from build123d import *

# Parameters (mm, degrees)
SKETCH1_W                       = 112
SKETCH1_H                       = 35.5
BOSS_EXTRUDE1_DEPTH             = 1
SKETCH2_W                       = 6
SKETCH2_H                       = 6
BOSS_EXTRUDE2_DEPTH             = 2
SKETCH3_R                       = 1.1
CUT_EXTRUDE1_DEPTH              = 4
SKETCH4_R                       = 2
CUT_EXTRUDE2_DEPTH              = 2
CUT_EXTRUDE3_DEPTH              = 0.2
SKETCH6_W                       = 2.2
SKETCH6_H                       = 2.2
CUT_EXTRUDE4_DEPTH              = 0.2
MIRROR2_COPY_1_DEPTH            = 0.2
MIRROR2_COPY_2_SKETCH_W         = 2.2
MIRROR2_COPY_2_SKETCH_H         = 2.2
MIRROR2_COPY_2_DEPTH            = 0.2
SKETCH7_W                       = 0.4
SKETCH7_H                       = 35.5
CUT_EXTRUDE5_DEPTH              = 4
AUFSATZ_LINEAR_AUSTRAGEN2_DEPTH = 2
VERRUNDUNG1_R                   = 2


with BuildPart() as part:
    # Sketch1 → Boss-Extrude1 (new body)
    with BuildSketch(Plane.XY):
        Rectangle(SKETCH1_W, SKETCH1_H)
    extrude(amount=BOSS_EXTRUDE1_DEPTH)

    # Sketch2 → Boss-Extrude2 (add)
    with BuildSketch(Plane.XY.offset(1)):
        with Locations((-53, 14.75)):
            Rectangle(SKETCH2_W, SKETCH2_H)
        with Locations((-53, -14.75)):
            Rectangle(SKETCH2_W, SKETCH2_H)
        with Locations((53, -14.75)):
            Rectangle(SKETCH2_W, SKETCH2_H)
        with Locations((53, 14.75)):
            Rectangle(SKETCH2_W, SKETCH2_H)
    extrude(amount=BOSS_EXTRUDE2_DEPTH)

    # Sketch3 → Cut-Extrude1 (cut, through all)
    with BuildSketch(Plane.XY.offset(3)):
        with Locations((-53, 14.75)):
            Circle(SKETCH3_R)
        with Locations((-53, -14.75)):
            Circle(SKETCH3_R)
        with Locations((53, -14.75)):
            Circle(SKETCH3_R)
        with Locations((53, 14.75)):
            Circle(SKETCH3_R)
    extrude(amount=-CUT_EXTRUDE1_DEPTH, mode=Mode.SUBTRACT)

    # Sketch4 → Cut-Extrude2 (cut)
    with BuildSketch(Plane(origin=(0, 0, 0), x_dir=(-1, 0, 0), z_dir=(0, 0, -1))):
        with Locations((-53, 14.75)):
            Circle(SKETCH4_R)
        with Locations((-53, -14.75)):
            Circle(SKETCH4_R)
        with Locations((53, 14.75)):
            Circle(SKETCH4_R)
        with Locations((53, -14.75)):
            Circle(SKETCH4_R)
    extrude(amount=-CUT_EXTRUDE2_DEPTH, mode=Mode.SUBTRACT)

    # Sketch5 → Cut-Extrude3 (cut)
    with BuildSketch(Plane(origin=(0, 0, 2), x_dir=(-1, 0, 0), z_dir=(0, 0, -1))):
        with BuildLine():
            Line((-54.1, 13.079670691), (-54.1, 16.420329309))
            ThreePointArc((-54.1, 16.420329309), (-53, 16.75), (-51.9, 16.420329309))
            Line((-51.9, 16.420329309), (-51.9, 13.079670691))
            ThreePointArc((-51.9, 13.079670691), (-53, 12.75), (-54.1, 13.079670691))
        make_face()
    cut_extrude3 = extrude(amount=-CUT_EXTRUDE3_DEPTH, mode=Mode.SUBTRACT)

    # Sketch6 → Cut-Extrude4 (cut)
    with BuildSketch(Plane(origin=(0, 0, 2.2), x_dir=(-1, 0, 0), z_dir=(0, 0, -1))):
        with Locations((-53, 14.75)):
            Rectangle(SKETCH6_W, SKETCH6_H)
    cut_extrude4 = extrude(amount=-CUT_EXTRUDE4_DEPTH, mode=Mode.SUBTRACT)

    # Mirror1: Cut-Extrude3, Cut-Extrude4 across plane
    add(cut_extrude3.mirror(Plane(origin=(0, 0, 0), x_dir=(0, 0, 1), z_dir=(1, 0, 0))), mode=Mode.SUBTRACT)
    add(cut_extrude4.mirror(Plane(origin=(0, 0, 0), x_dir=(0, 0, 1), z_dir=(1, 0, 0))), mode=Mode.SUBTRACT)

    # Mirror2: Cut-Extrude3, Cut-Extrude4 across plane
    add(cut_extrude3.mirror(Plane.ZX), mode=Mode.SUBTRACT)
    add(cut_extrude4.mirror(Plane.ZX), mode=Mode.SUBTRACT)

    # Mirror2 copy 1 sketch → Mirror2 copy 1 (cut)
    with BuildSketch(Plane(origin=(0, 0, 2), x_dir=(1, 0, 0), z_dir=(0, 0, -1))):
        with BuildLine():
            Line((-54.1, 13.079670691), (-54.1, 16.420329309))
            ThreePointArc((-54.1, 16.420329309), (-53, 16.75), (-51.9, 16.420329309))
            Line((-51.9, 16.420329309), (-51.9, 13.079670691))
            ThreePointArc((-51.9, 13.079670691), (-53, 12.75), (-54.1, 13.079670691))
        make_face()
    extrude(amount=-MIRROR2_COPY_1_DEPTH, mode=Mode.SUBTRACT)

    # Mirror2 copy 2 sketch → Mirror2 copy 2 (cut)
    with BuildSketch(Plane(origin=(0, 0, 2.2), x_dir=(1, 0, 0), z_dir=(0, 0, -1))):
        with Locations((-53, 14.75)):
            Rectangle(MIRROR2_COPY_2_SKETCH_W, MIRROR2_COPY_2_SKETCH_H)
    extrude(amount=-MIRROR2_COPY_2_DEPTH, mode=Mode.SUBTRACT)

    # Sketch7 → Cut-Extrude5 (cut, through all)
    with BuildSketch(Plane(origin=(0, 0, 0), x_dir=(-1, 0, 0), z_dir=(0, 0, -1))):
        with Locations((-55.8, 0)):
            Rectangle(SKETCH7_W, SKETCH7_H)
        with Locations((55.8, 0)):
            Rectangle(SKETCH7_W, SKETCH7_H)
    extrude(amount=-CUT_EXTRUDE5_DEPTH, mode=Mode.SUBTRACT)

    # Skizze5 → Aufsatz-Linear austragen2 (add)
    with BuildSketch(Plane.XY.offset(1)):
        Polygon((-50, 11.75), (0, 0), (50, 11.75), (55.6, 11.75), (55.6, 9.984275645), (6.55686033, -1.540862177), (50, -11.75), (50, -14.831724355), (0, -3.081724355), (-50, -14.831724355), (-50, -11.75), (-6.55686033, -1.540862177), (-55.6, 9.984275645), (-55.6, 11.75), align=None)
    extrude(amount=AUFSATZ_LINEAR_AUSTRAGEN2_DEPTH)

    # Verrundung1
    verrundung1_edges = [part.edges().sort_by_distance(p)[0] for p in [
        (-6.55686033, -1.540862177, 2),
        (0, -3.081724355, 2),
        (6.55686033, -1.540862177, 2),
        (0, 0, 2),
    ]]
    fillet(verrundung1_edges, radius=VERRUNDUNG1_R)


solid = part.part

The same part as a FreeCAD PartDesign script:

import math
import FreeCAD as App
import Part
import Sketcher

V = App.Vector


def edges_at(feature, points):
    """Names of the edges that pass closest to the given points."""
    edges = feature.Shape.Edges
    near = lambda p: min(range(len(edges)), key=lambda i: edges[i].distToShape(Part.Vertex(*p))[0])
    return sorted({f"Edge{near(p) + 1}" for p in points})

doc = App.newDocument("Part")
body = doc.addObject("PartDesign::Body", "Body")

# Sketch on XY plane
sketch1 = body.newObject("Sketcher::SketchObject", "Sketch")
sketch1.AttachmentSupport = (doc.getObject("XY_Plane"), [""])
sketch1.MapMode = "FlatFace"
sketch1.addGeometry([
    Part.LineSegment(V(-56, 18, 0), V(-56, -18, 0)),
    Part.LineSegment(V(-56, -18, 0), V(56, -18, 0)),
    Part.LineSegment(V(56, -18, 0), V(56, 18, 0)),
    Part.LineSegment(V(56, 18, 0), V(-56, 18, 0)),
], False)
sketch1.addConstraint([
    Sketcher.Constraint("Coincident", 0, 2, 1, 1),
    Sketcher.Constraint("Coincident", 1, 2, 2, 1),
    Sketcher.Constraint("Coincident", 2, 2, 3, 1),
    Sketcher.Constraint("Coincident", 3, 2, 0, 1),
    Sketcher.Constraint("Vertical", 0),
    Sketcher.Constraint("Horizontal", 1),
    Sketcher.Constraint("Vertical", 2),
    Sketcher.Constraint("Horizontal", 3),
    Sketcher.Constraint("Symmetric", 0, 2, 2, 2, -1, 1),
    Sketcher.Constraint("DistanceX", 1, 1, 1, 2, 112.0),
    Sketcher.Constraint("DistanceY", 0, 2, 0, 1, 35.5),
])
pad1 = body.newObject("PartDesign::Pad", "Pad")
pad1.Profile = sketch1
pad1.Length = 1

# Sketch on XY plane
sketch2 = body.newObject("Sketcher::SketchObject", "Sketch001")
sketch2.AttachmentSupport = (doc.getObject("XY_Plane"), [""])
sketch2.MapMode = "FlatFace"
sketch2.AttachmentOffset = App.Placement(V(0, 0, 1), App.Rotation())
sketch2.addGeometry([
    Part.LineSegment(V(-56, 18, 0), V(-56, 12, 0)),  # 0
    Part.LineSegment(V(-56, 12, 0), V(-50, 12, 0)),  # 1
    Part.LineSegment(V(-50, 12, 0), V(-50, 18, 0)),  # 2
    Part.LineSegment(V(-50, 18, 0), V(-56, 18, 0)),  # 3
    Part.LineSegment(V(-56, -12, 0), V(-56, -18, 0)),  # 4
    Part.LineSegment(V(-56, -18, 0), V(-50, -18, 0)),  # 5
    Part.LineSegment(V(-50, -18, 0), V(-50, -12, 0)),  # 6
    Part.LineSegment(V(-50, -12, 0), V(-56, -12, 0)),  # 7
    Part.LineSegment(V(50, -12, 0), V(50, -18, 0)),  # 8
    Part.LineSegment(V(50, -18, 0), V(56, -18, 0)),  # 9
    Part.LineSegment(V(56, -18, 0), V(56, -12, 0)),  # 10
    Part.LineSegment(V(56, -12, 0), V(50, -12, 0)),  # 11
    Part.LineSegment(V(50, 18, 0), V(50, 12, 0)),  # 12
    Part.LineSegment(V(50, 12, 0), V(56, 12, 0)),  # 13
    Part.LineSegment(V(56, 12, 0), V(56, 18, 0)),  # 14
    Part.LineSegment(V(56, 18, 0), V(50, 18, 0)),  # 15
], False)
sketch2.addConstraint([
    Sketcher.Constraint("Coincident", 0, 2, 1, 1),
    Sketcher.Constraint("Coincident", 1, 2, 2, 1),
    Sketcher.Constraint("Coincident", 2, 2, 3, 1),
    Sketcher.Constraint("Coincident", 3, 2, 0, 1),
    Sketcher.Constraint("Coincident", 4, 2, 5, 1),
    Sketcher.Constraint("Coincident", 5, 2, 6, 1),
    Sketcher.Constraint("Coincident", 6, 2, 7, 1),
    Sketcher.Constraint("Coincident", 7, 2, 4, 1),
    Sketcher.Constraint("Coincident", 8, 2, 9, 1),
    Sketcher.Constraint("Coincident", 9, 2, 10, 1),
    Sketcher.Constraint("Coincident", 10, 2, 11, 1),
    Sketcher.Constraint("Coincident", 11, 2, 8, 1),
    Sketcher.Constraint("Coincident", 12, 2, 13, 1),
    Sketcher.Constraint("Coincident", 13, 2, 14, 1),
    Sketcher.Constraint("Coincident", 14, 2, 15, 1),
    Sketcher.Constraint("Coincident", 15, 2, 12, 1),
    Sketcher.Constraint("Vertical", 0),
    Sketcher.Constraint("Horizontal", 1),
    Sketcher.Constraint("Vertical", 2),
    Sketcher.Constraint("Horizontal", 3),
    Sketcher.Constraint("Vertical", 4),
    Sketcher.Constraint("Horizontal", 5),
    Sketcher.Constraint("Vertical", 6),
    Sketcher.Constraint("Horizontal", 7),
    Sketcher.Constraint("Vertical", 8),
    Sketcher.Constraint("Horizontal", 9),
    Sketcher.Constraint("Vertical", 10),
    Sketcher.Constraint("Horizontal", 11),
    Sketcher.Constraint("Vertical", 12),
    Sketcher.Constraint("Horizontal", 13),
    Sketcher.Constraint("Vertical", 14),
    Sketcher.Constraint("Horizontal", 15),
    Sketcher.Constraint("Symmetric", 2, 2, 8, 2, -1, 1),
    Sketcher.Constraint("Symmetric", 0, 2, 10, 2, -1, 1),
    Sketcher.Constraint("Symmetric", 6, 2, 12, 2, -1, 1),
    Sketcher.Constraint("Symmetric", 4, 2, 14, 2, -1, 1),
    Sketcher.Constraint("Symmetric", 5, 2, 8, 2, -2),
    Sketcher.Constraint("Symmetric", 7, 2, 10, 2, -2),
    Sketcher.Constraint("Equal", 15, 0),
    Sketcher.Constraint("DistanceX", 1, 1, 1, 2, 6.0),
    Sketcher.Constraint("DistanceX", 0, 2, -1, 1, 56.0),
    Sketcher.Constraint("DistanceY", 4, 2, 0, 2, 29.5),
])
pad2 = body.newObject("PartDesign::Pad", "Pad001")
pad2.Profile = sketch2
pad2.Length = 2

# Sketch on XY plane
sketch3 = body.newObject("Sketcher::SketchObject", "Sketch002")
sketch3.AttachmentSupport = (doc.getObject("XY_Plane"), [""])
sketch3.MapMode = "FlatFace"
sketch3.AttachmentOffset = App.Placement(V(0, 0, 3), App.Rotation())
sketch3.addGeometry([
    Part.Circle(V(-53, 14.8, 0), V(0, 0, 1), 1.1),
    Part.Circle(V(-53, -14.8, 0), V(0, 0, 1), 1.1),
    Part.Circle(V(53, -14.8, 0), V(0, 0, 1), 1.1),
    Part.Circle(V(53, 14.8, 0), V(0, 0, 1), 1.1),
], False)
sketch3.addConstraint([
    Sketcher.Constraint("Equal", 0, 1),
    Sketcher.Constraint("Equal", 1, 2),
    Sketcher.Constraint("Equal", 2, 3),
    Sketcher.Constraint("Symmetric", 0, 3, 2, 3, -1, 1),
    Sketcher.Constraint("Symmetric", 1, 3, 3, 3, -1, 1),
    Sketcher.Constraint("Symmetric", 1, 3, 2, 3, -2),
    Sketcher.Constraint("Diameter", 0, 2.2),
    Sketcher.Constraint("DistanceX", 0, 3, -1, 1, 53.0),
    Sketcher.Constraint("DistanceY", 1, 3, 0, 3, 29.5),
])
pocket1 = body.newObject("PartDesign::Pocket", "Pocket")
pocket1.Profile = sketch3
pocket1.Type = "ThroughAll"

# Sketch on XY plane
sketch4 = body.newObject("Sketcher::SketchObject", "Sketch003")
sketch4.AttachmentSupport = (doc.getObject("XY_Plane"), [""])
sketch4.MapMode = "FlatFace"
sketch4.addGeometry([
    Part.Circle(V(53, 14.8, 0), V(0, 0, 1), 2),
    Part.Circle(V(53, -14.8, 0), V(0, 0, 1), 2),
    Part.Circle(V(-53, 14.8, 0), V(0, 0, 1), 2),
    Part.Circle(V(-53, -14.8, 0), V(0, 0, 1), 2),
], False)
sketch4.addConstraint([
    Sketcher.Constraint("Equal", 0, 1),
    Sketcher.Constraint("Equal", 1, 2),
    Sketcher.Constraint("Equal", 2, 3),
    Sketcher.Constraint("Symmetric", 1, 3, 2, 3, -1, 1),
    Sketcher.Constraint("Symmetric", 0, 3, 3, 3, -1, 1),
    Sketcher.Constraint("Symmetric", 0, 3, 2, 3, -2),
    Sketcher.Constraint("Diameter", 0, 4.0),
    Sketcher.Constraint("DistanceX", -1, 1, 0, 3, 53.0),
    Sketcher.Constraint("DistanceY", 1, 3, 0, 3, 29.5),
])
pocket2 = body.newObject("PartDesign::Pocket", "Pocket001")
pocket2.Profile = sketch4
pocket2.Length = 2
pocket2.Reversed = True

# Sketch on XY plane
sketch5 = body.newObject("Sketcher::SketchObject", "Sketch004")
sketch5.AttachmentSupport = (doc.getObject("XY_Plane"), [""])
sketch5.MapMode = "FlatFace"
sketch5.AttachmentOffset = App.Placement(V(0, 0, 2), App.Rotation())
sketch5.addGeometry([
    Part.LineSegment(V(54.1, 16.4, 0), V(54.1, 13.1, 0)),
    Part.ArcOfCircle(Part.Circle(V(53, 14.8, 0), V(0, 0, 1), 2), math.radians(-123), math.radians(-57)),
    Part.LineSegment(V(51.9, 13.1, 0), V(51.9, 16.4, 0)),
    Part.ArcOfCircle(Part.Circle(V(53, 14.7, 0), V(0, 0, 1), 2), math.radians(57), math.radians(123)),
], False)
sketch5.addConstraint([
    Sketcher.Constraint("Coincident", 0, 2, 1, 2),
    Sketcher.Constraint("Coincident", 1, 1, 2, 1),
    Sketcher.Constraint("Coincident", 2, 2, 3, 2),
    Sketcher.Constraint("Coincident", 3, 1, 0, 1),
    Sketcher.Constraint("Vertical", 0),
    Sketcher.Constraint("Vertical", 2),
    Sketcher.Constraint("Coincident", 3, 3, 1, 3),
    Sketcher.Constraint("Equal", 1, 3),
    Sketcher.Constraint("Horizontal", 0, 2, 1, 1),
    Sketcher.Constraint("Radius", 1, 2.0),
    Sketcher.Constraint("DistanceX", -1, 1, 1, 3, 53.0),
    Sketcher.Constraint("DistanceX", -1, 1, 0, 2, 54.1),
    Sketcher.Constraint("DistanceY", -1, 1, 1, 3, 14.75),
])
pocket3 = body.newObject("PartDesign::Pocket", "Pocket002")
pocket3.Profile = sketch5
pocket3.Length = 0.2
pocket3.Reversed = True

# Sketch on XY plane
sketch6 = body.newObject("Sketcher::SketchObject", "Sketch005")
sketch6.AttachmentSupport = (doc.getObject("XY_Plane"), [""])
sketch6.MapMode = "FlatFace"
sketch6.AttachmentOffset = App.Placement(V(0, 0, 2.2), App.Rotation())
sketch6.addGeometry([
    Part.LineSegment(V(54.1, 15.8, 0), V(54.1, 13.7, 0)),
    Part.LineSegment(V(54.1, 13.7, 0), V(51.9, 13.7, 0)),
    Part.LineSegment(V(51.9, 13.7, 0), V(51.9, 15.8, 0)),
    Part.LineSegment(V(51.9, 15.8, 0), V(54.1, 15.8, 0)),
], False)
sketch6.addConstraint([
    Sketcher.Constraint("Coincident", 0, 2, 1, 1),
    Sketcher.Constraint("Coincident", 1, 2, 2, 1),
    Sketcher.Constraint("Coincident", 2, 2, 3, 1),
    Sketcher.Constraint("Coincident", 3, 2, 0, 1),
    Sketcher.Constraint("Vertical", 0),
    Sketcher.Constraint("Horizontal", 1),
    Sketcher.Constraint("Vertical", 2),
    Sketcher.Constraint("Horizontal", 3),
    Sketcher.Constraint("Equal", 3, 0),
    Sketcher.Constraint("DistanceX", 1, 2, 1, 1, 2.2),
    Sketcher.Constraint("DistanceX", -1, 1, 0, 2, 54.1),
    Sketcher.Constraint("DistanceY", -1, 1, 0, 2, 13.65),
])
pocket4 = body.newObject("PartDesign::Pocket", "Pocket003")
pocket4.Profile = sketch6
pocket4.Length = 0.2
pocket4.Reversed = True
doc.recompute()

mirrored = body.newObject("PartDesign::Mirrored", "Mirrored")
mirrored.Originals = [pocket3, pocket4]
mirrored.MirrorPlane = (doc.getObject("YZ_Plane"), [""])
body.Tip = mirrored
doc.recompute()

mirrored2 = body.newObject("PartDesign::Mirrored", "Mirrored001")
mirrored2.Originals = [pocket3, pocket4]
mirrored2.MirrorPlane = (doc.getObject("XZ_Plane"), [""])
body.Tip = mirrored2

# Sketch on XY plane
sketch7 = body.newObject("Sketcher::SketchObject", "Sketch006")
sketch7.AttachmentSupport = (doc.getObject("XY_Plane"), [""])
sketch7.MapMode = "FlatFace"
sketch7.AttachmentOffset = App.Placement(V(0, 0, 2), App.Rotation())
sketch7.addGeometry([
    Part.LineSegment(V(-54.1, -16.4, 0), V(-54.1, -13.1, 0)),
    Part.ArcOfCircle(Part.Circle(V(-53, -14.8, 0), V(0, 0, 1), 2), math.radians(57), math.radians(123)),
    Part.LineSegment(V(-51.9, -13.1, 0), V(-51.9, -16.4, 0)),
    Part.ArcOfCircle(Part.Circle(V(-53, -14.7, 0), V(0, 0, 1), 2), math.radians(-123), math.radians(-57)),
], False)
sketch7.addConstraint([
    Sketcher.Constraint("Coincident", 0, 2, 1, 2),
    Sketcher.Constraint("Coincident", 1, 1, 2, 1),
    Sketcher.Constraint("Coincident", 2, 2, 3, 2),
    Sketcher.Constraint("Coincident", 3, 1, 0, 1),
    Sketcher.Constraint("Vertical", 0),
    Sketcher.Constraint("Vertical", 2),
    Sketcher.Constraint("Coincident", 3, 3, 1, 3),
    Sketcher.Constraint("Equal", 1, 3),
    Sketcher.Constraint("Horizontal", 0, 2, 1, 1),
    Sketcher.Constraint("Radius", 1, 2.0),
    Sketcher.Constraint("DistanceX", 1, 3, -1, 1, 53.0),
    Sketcher.Constraint("DistanceX", 0, 2, -1, 1, 54.1),
    Sketcher.Constraint("DistanceY", 1, 3, -1, 1, 14.75),
])
pocket5 = body.newObject("PartDesign::Pocket", "Pocket004")
pocket5.Profile = sketch7
pocket5.Length = 0.2
pocket5.Reversed = True

# Sketch on XY plane
sketch8 = body.newObject("Sketcher::SketchObject", "Sketch007")
sketch8.AttachmentSupport = (doc.getObject("XY_Plane"), [""])
sketch8.MapMode = "FlatFace"
sketch8.AttachmentOffset = App.Placement(V(0, 0, 2.2), App.Rotation())
sketch8.addGeometry([
    Part.LineSegment(V(-54.1, -15.8, 0), V(-54.1, -13.7, 0)),
    Part.LineSegment(V(-54.1, -13.7, 0), V(-51.9, -13.7, 0)),
    Part.LineSegment(V(-51.9, -13.7, 0), V(-51.9, -15.8, 0)),
    Part.LineSegment(V(-51.9, -15.8, 0), V(-54.1, -15.8, 0)),
], False)
sketch8.addConstraint([
    Sketcher.Constraint("Coincident", 0, 2, 1, 1),
    Sketcher.Constraint("Coincident", 1, 2, 2, 1),
    Sketcher.Constraint("Coincident", 2, 2, 3, 1),
    Sketcher.Constraint("Coincident", 3, 2, 0, 1),
    Sketcher.Constraint("Vertical", 0),
    Sketcher.Constraint("Horizontal", 1),
    Sketcher.Constraint("Vertical", 2),
    Sketcher.Constraint("Horizontal", 3),
    Sketcher.Constraint("Equal", 3, 0),
    Sketcher.Constraint("DistanceX", 1, 1, 1, 2, 2.2),
    Sketcher.Constraint("DistanceX", 0, 2, -1, 1, 54.1),
    Sketcher.Constraint("DistanceY", 0, 2, -1, 1, 13.65),
])
pocket6 = body.newObject("PartDesign::Pocket", "Pocket005")
pocket6.Profile = sketch8
pocket6.Length = 0.2
pocket6.Reversed = True

# Sketch on XY plane
sketch9 = body.newObject("Sketcher::SketchObject", "Sketch008")
sketch9.AttachmentSupport = (doc.getObject("XY_Plane"), [""])
sketch9.MapMode = "FlatFace"
sketch9.addGeometry([
    Part.LineSegment(V(56, 17.75, 0), V(56, -17.75, 0)),  # 0
    Part.LineSegment(V(56, -17.75, 0), V(55.6, -17.75, 0)),  # 1
    Part.LineSegment(V(55.6, -17.75, 0), V(55.6, 17.75, 0)),  # 2
    Part.LineSegment(V(55.6, 17.75, 0), V(56, 17.75, 0)),  # 3
    Part.LineSegment(V(-55.6, 17.75, 0), V(-55.6, -17.75, 0)),  # 4
    Part.LineSegment(V(-55.6, -17.75, 0), V(-56, -17.75, 0)),  # 5
    Part.LineSegment(V(-56, -17.75, 0), V(-56, 17.75, 0)),  # 6
    Part.LineSegment(V(-56, 17.75, 0), V(-55.6, 17.75, 0)),  # 7
], False)
sketch9.addConstraint([
    Sketcher.Constraint("Coincident", 0, 2, 1, 1),
    Sketcher.Constraint("Coincident", 1, 2, 2, 1),
    Sketcher.Constraint("Coincident", 2, 2, 3, 1),
    Sketcher.Constraint("Coincident", 3, 2, 0, 1),
    Sketcher.Constraint("Coincident", 4, 2, 5, 1),
    Sketcher.Constraint("Coincident", 5, 2, 6, 1),
    Sketcher.Constraint("Coincident", 6, 2, 7, 1),
    Sketcher.Constraint("Coincident", 7, 2, 4, 1),
    Sketcher.Constraint("Vertical", 0),
    Sketcher.Constraint("Horizontal", 1),
    Sketcher.Constraint("Vertical", 2),
    Sketcher.Constraint("Horizontal", 3),
    Sketcher.Constraint("Vertical", 4),
    Sketcher.Constraint("Horizontal", 5),
    Sketcher.Constraint("Vertical", 6),
    Sketcher.Constraint("Horizontal", 7),
    Sketcher.Constraint("Symmetric", 2, 2, 4, 2, -1, 1),
    Sketcher.Constraint("Symmetric", 0, 2, 6, 2, -1, 1),
    Sketcher.Constraint("Horizontal", 1, 2, 4, 2),
    Sketcher.Constraint("DistanceX", 1, 2, 1, 1, 0.4),
    Sketcher.Constraint("DistanceY", 0, 2, 0, 1, 35.5),
    Sketcher.Constraint("DistanceX", -1, 1, 0, 2, 56.0),
])
pocket7 = body.newObject("PartDesign::Pocket", "Pocket006")
pocket7.Profile = sketch9
pocket7.Type = "ThroughAll"
pocket7.Reversed = True

# Sketch on XY plane
sketch10 = body.newObject("Sketcher::SketchObject", "Sketch009")
sketch10.AttachmentSupport = (doc.getObject("XY_Plane"), [""])
sketch10.MapMode = "FlatFace"
sketch10.AttachmentOffset = App.Placement(V(0, 0, 1), App.Rotation())
sketch10.addGeometry([
    Part.LineSegment(V(0, 0, 0), V(-50, 11.8, 0)),  # 0
    Part.LineSegment(V(-50, 11.8, 0), V(-55.6, 11.8, 0)),  # 1
    Part.LineSegment(V(-55.6, 11.8, 0), V(-55.6, 10, 0)),  # 2
    Part.LineSegment(V(-55.6, 10, 0), V(-6.6, -1.5, 0)),  # 3
    Part.LineSegment(V(-6.6, -1.5, 0), V(-50, -11.8, 0)),  # 4
    Part.LineSegment(V(-50, -11.8, 0), V(-50, -14.8, 0)),  # 5
    Part.LineSegment(V(-50, -14.8, 0), V(0, -3.1, 0)),  # 6
    Part.LineSegment(V(0, -3.1, 0), V(50, -14.8, 0)),  # 7
    Part.LineSegment(V(50, -14.8, 0), V(50, -11.8, 0)),  # 8
    Part.LineSegment(V(50, -11.8, 0), V(6.6, -1.5, 0)),  # 9
    Part.LineSegment(V(6.6, -1.5, 0), V(55.6, 10, 0)),  # 10
    Part.LineSegment(V(55.6, 10, 0), V(55.6, 11.8, 0)),  # 11
    Part.LineSegment(V(55.6, 11.8, 0), V(50, 11.8, 0)),  # 12
    Part.LineSegment(V(50, 11.8, 0), V(0, 0, 0)),  # 13
], False)
sketch10.addConstraint([
    Sketcher.Constraint("Coincident", 0, 2, 1, 1),
    Sketcher.Constraint("Coincident", 1, 2, 2, 1),
    Sketcher.Constraint("Coincident", 2, 2, 3, 1),
    Sketcher.Constraint("Coincident", 3, 2, 4, 1),
    Sketcher.Constraint("Coincident", 4, 2, 5, 1),
    Sketcher.Constraint("Coincident", 5, 2, 6, 1),
    Sketcher.Constraint("Coincident", 6, 2, 7, 1),
    Sketcher.Constraint("Coincident", 7, 2, 8, 1),
    Sketcher.Constraint("Coincident", 8, 2, 9, 1),
    Sketcher.Constraint("Coincident", 9, 2, 10, 1),
    Sketcher.Constraint("Coincident", 10, 2, 11, 1),
    Sketcher.Constraint("Coincident", 11, 2, 12, 1),
    Sketcher.Constraint("Coincident", 12, 2, 13, 1),
    Sketcher.Constraint("Coincident", 13, 2, 0, 1),
    Sketcher.Constraint("Horizontal", 1),
    Sketcher.Constraint("Vertical", 2),
    Sketcher.Constraint("Vertical", 5),
    Sketcher.Constraint("Vertical", 8),
    Sketcher.Constraint("Vertical", 11),
    Sketcher.Constraint("Horizontal", 12),
    Sketcher.Constraint("Coincident", 13, 2, -1, 1),
    Sketcher.Constraint("Symmetric", 0, 2, 8, 2, -1, 1),
    Sketcher.Constraint("Symmetric", 4, 2, 12, 2, -1, 1),
    Sketcher.Constraint("Symmetric", 5, 2, 7, 2, -2),
    Sketcher.Constraint("Symmetric", 3, 2, 9, 2, -2),
    Sketcher.Constraint("Symmetric", 2, 2, 10, 2, -2),
    Sketcher.Constraint("PointOnObject", 6, 2, -2),
    Sketcher.Constraint("Parallel", 0, 3),
    Sketcher.Constraint("Parallel", 4, 6),
    Sketcher.Constraint("Parallel", 3, 7),
    Sketcher.Constraint("Parallel", 7, 9),
    Sketcher.Constraint("DistanceX", 1, 2, 1, 1, 5.6),
    Sketcher.Constraint("DistanceX", 0, 2, -1, 1, 50.0),
    Sketcher.Constraint("DistanceY", 4, 2, 0, 2, 23.5),
    Sketcher.Constraint("DistanceY", 5, 2, 2, 2, 24.816),
    Sketcher.Constraint("DistanceY", 2, 2, 2, 1, 1.765724),
])
pad3 = body.newObject("PartDesign::Pad", "Pad002")
pad3.Profile = sketch10
pad3.Length = 2
doc.recompute()

fillet = body.newObject("PartDesign::Fillet", "Fillet")
fillet.Base = (pad3, edges_at(pad3, [
    (-6.557, -1.541, 2),
    (0, -3.082, 2),
    (6.557, -1.541, 2),
    (0, 0, 2),
]))
fillet.Radius = 2

doc.recompute()
